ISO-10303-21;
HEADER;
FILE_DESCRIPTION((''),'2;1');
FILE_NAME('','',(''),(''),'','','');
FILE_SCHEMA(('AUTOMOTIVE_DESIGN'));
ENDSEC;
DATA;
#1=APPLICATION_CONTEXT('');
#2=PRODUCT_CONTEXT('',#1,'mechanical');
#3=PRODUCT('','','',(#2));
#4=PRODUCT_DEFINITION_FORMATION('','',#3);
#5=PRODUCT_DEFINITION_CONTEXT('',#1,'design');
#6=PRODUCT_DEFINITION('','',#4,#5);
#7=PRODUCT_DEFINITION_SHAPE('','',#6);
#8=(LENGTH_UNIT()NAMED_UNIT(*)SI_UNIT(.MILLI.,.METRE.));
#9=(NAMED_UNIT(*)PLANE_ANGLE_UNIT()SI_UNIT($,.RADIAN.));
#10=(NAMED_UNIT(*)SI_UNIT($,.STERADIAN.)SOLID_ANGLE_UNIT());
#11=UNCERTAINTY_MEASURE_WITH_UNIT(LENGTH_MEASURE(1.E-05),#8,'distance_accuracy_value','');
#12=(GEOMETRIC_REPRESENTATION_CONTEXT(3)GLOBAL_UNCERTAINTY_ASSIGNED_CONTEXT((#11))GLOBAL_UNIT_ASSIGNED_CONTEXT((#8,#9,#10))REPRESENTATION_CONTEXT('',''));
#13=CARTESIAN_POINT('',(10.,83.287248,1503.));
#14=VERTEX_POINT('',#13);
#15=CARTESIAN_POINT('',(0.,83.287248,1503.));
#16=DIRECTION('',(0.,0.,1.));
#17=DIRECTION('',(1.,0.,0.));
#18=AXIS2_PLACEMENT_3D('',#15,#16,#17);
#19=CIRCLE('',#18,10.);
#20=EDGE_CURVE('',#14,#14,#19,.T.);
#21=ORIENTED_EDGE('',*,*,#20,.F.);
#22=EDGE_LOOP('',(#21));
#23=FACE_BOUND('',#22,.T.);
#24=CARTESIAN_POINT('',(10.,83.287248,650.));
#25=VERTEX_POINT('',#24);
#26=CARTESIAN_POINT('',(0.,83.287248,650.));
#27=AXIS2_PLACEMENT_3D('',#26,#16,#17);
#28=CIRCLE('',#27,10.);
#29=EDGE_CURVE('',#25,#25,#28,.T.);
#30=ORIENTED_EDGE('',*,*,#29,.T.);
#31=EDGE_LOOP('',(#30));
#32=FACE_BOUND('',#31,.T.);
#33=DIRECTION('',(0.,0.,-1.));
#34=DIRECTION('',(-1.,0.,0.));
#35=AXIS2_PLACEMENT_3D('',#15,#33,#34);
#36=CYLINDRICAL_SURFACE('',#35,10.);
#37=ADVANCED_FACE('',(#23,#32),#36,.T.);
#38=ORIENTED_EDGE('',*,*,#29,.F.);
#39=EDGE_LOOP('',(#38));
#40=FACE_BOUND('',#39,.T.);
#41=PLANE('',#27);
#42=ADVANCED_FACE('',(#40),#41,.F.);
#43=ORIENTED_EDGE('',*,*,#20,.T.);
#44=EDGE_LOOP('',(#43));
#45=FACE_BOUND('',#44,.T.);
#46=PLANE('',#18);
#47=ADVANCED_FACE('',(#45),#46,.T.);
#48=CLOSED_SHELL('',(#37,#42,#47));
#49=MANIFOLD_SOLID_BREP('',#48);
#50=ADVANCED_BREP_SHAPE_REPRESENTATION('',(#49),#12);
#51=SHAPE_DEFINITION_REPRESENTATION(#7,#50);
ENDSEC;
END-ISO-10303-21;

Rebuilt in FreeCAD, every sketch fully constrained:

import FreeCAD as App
import Part
import Sketcher
Q = App.Units.Quantity

doc = App.newDocument("Part")
body = doc.addObject("PartDesign::Body", "Body")

sketch1 = doc.addObject("Sketcher::SketchObject", "Sketch")
body.addObject(sketch1)
sketch1.AttachmentSupport = (doc.XY_Plane, [""])
sketch1.MapMode = "FlatFace"
sketch1.AttachmentOffset = App.Placement(App.Vector(0, 0, 650), App.Rotation())
sketch1.addGeometry(Part.Circle(App.Vector(0, 83, 0), App.Vector(0, 0, 1), 10), False)
sketch1.addConstraint(Sketcher.Constraint("PointOnObject", 0, 3, -2))
sketch1.addConstraint(Sketcher.Constraint("Diameter", 0, Q("20 mm")))
sketch1.addConstraint(Sketcher.Constraint("DistanceY", -1, 1, 0, 3, Q("83.287248 mm")))
pad1 = doc.addObject("PartDesign::Pad", "Pad")
body.addObject(pad1)
pad1.Profile = sketch1
pad1.Length = 853

doc.recompute()
